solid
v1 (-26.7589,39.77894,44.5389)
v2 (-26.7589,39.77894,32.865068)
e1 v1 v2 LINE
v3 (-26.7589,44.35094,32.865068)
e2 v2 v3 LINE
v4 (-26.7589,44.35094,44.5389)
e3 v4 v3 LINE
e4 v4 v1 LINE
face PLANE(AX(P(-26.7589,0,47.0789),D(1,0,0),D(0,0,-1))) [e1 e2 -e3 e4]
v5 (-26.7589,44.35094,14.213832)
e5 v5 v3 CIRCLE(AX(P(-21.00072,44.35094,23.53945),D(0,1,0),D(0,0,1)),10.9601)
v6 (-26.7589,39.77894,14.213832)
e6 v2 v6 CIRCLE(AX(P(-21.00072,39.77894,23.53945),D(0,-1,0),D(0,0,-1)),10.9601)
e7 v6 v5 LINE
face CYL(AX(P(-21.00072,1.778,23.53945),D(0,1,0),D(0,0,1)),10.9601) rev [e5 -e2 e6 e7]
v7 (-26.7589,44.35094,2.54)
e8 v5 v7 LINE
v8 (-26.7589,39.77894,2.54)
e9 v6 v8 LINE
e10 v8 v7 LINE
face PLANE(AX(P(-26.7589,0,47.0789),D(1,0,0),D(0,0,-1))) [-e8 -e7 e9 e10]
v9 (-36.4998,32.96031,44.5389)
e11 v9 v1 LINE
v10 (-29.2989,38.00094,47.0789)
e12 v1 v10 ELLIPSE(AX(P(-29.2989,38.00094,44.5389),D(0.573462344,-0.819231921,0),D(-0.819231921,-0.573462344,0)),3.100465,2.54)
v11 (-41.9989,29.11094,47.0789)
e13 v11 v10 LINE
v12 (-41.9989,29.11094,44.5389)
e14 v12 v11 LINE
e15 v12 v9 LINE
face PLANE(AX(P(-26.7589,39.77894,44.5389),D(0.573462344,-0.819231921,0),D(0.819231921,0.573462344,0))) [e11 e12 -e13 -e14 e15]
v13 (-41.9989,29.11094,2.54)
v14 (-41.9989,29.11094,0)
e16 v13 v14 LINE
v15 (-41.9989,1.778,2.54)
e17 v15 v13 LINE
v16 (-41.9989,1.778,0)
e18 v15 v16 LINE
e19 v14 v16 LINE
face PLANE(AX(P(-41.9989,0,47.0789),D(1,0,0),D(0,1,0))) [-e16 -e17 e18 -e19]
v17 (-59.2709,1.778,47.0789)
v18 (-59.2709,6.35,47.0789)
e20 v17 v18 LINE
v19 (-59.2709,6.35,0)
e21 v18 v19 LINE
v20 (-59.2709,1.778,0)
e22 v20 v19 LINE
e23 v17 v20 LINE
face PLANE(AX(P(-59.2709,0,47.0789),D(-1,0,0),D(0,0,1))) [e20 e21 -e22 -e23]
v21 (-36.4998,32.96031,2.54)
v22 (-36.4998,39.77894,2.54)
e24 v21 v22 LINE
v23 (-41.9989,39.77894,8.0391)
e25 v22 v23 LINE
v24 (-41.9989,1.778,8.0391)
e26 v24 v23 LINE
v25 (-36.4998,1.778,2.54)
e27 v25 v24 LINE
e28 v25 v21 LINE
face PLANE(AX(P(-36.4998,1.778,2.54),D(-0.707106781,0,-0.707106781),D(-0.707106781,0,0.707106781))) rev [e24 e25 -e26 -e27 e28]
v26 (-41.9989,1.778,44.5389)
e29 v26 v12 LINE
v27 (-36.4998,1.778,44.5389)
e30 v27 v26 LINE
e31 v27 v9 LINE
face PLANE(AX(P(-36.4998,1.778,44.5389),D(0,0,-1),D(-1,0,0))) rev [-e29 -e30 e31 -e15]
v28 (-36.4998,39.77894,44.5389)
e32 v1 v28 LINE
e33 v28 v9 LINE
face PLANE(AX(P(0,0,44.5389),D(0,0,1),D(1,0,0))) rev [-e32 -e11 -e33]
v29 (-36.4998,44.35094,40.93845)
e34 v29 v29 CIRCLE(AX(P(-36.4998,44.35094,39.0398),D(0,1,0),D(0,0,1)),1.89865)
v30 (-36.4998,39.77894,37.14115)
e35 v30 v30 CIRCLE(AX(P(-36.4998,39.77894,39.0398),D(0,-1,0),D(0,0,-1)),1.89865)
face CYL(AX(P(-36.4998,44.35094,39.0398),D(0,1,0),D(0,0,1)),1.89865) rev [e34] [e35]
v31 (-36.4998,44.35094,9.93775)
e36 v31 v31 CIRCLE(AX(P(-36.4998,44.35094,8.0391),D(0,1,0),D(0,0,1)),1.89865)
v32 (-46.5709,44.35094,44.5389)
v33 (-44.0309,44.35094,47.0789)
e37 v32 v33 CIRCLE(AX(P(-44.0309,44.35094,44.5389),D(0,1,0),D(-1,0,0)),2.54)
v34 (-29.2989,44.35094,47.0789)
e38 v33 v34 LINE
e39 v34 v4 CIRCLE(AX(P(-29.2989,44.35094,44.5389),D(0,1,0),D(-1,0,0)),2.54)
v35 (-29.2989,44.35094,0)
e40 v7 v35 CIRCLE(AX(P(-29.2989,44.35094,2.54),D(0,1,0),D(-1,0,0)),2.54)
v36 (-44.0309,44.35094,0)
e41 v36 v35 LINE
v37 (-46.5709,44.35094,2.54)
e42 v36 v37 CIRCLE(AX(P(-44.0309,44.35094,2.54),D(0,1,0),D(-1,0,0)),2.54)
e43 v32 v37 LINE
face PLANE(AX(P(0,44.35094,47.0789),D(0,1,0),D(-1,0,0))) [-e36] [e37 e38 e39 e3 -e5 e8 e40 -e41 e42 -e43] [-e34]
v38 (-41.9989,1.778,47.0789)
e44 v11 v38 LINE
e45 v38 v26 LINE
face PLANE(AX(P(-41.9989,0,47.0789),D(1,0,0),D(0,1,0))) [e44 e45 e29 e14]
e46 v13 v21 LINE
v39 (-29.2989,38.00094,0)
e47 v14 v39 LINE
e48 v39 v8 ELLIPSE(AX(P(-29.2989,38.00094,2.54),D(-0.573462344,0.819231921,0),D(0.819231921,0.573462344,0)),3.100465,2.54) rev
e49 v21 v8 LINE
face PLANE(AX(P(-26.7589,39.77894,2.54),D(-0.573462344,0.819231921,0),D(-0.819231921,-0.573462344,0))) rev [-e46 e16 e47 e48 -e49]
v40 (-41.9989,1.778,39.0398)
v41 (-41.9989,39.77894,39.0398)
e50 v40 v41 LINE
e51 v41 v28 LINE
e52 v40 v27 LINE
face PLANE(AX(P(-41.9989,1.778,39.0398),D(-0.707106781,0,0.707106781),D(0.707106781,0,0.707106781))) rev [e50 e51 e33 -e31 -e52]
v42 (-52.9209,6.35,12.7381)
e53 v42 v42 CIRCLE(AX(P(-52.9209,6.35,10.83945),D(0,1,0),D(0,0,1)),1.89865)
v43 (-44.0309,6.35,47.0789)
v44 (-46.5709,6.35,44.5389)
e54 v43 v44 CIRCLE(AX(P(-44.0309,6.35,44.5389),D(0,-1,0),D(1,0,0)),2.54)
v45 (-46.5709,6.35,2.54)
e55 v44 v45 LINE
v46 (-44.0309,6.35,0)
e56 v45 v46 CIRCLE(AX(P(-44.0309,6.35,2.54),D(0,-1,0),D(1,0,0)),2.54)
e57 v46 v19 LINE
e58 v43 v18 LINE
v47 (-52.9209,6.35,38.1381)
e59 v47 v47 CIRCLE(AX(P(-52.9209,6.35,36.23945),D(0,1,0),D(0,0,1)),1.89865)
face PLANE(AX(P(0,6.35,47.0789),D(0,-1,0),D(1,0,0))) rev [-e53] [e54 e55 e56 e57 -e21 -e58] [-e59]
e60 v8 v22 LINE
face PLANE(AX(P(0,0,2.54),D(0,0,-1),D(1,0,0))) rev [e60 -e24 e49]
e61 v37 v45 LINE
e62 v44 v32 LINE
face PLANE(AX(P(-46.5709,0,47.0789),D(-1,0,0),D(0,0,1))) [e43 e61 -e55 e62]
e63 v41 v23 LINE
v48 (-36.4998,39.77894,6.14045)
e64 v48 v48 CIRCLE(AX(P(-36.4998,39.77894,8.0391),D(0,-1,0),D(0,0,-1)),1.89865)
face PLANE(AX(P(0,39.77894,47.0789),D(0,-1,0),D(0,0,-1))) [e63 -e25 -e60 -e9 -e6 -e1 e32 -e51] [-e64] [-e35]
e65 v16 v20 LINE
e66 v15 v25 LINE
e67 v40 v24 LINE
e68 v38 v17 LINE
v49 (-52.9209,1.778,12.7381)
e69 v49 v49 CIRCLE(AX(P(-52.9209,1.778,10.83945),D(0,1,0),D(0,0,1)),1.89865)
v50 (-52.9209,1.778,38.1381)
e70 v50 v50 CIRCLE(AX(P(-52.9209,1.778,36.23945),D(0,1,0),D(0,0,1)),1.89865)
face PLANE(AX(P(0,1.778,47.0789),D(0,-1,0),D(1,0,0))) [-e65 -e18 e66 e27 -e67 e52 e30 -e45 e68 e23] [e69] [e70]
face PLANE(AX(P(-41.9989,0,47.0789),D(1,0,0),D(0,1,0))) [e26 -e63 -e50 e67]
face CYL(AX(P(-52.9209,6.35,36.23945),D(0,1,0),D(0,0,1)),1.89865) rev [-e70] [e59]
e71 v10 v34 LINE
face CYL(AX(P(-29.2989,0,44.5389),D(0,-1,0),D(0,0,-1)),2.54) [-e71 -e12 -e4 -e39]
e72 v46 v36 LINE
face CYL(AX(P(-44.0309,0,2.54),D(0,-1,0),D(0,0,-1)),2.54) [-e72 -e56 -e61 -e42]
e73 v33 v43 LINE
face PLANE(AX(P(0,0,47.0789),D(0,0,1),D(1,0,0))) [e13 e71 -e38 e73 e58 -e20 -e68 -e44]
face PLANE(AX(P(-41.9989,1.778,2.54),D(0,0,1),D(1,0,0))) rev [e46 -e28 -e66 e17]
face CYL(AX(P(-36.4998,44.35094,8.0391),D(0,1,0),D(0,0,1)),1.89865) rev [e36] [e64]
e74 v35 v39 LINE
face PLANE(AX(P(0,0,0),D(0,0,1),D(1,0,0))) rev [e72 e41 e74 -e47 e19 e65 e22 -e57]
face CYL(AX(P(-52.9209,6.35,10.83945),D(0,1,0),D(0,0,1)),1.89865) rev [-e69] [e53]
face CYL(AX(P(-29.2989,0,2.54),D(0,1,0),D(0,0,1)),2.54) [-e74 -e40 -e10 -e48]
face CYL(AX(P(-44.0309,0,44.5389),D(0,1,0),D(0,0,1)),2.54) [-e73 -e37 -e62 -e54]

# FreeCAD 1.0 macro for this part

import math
import FreeCAD as App
import Part
import Sketcher
Q = App.Units.Quantity


def edges_at(feature, points):
    """Names of the edges that pass closest to the given points."""
    edges = feature.Shape.Edges
    near = lambda p: min(range(len(edges)), key=lambda i: edges[i].distToShape(Part.Vertex(*p))[0])
    return sorted({f"Edge{near(p) + 1}" for p in points})

doc = App.newDocument("Part")
body = doc.addObject("PartDesign::Body", "Body")

# Sketch on XY plane
sketch1 = body.newObject("Sketcher::SketchObject", "Sketch")
sketch1.AttachmentSupport = (doc.getObject("XY_Plane"), [""])
sketch1.MapMode = "FlatFace"
sketch1.addGeometry(Part.LineSegment(App.Vector(-59.3, 6.3, 0), App.Vector(-59.3, 1.8, 0)), False)
sketch1.addGeometry(Part.LineSegment(App.Vector(-59.3, 1.8, 0), App.Vector(-42, 1.8, 0)), False)
sketch1.addGeometry(Part.LineSegment(App.Vector(-42, 1.8, 0), App.Vector(-42, 39.8, 0)), False)
sketch1.addGeometry(Part.LineSegment(App.Vector(-42, 39.8, 0), App.Vector(-26.8, 39.8, 0)), False)
sketch1.addGeometry(Part.LineSegment(App.Vector(-26.8, 39.8, 0), App.Vector(-26.8, 44.4, 0)), False)
sketch1.addGeometry(Part.LineSegment(App.Vector(-26.8, 44.4, 0), App.Vector(-46.6, 44.4, 0)), False)
sketch1.addGeometry(Part.LineSegment(App.Vector(-46.6, 44.4, 0), App.Vector(-46.6, 6.3, 0)), False)
sketch1.addGeometry(Part.LineSegment(App.Vector(-46.6, 6.3, 0), App.Vector(-59.3, 6.3, 0)), False)
sketch1.addConstraint(Sketcher.Constraint("Coincident", 0, 2, 1, 1))
sketch1.addConstraint(Sketcher.Constraint("Coincident", 1, 2, 2, 1))
sketch1.addConstraint(Sketcher.Constraint("Coincident", 2, 2, 3, 1))
sketch1.addConstraint(Sketcher.Constraint("Coincident", 3, 2, 4, 1))
sketch1.addConstraint(Sketcher.Constraint("Coincident", 4, 2, 5, 1))
sketch1.addConstraint(Sketcher.Constraint("Coincident", 5, 2, 6, 1))
sketch1.addConstraint(Sketcher.Constraint("Coincident", 6, 2, 7, 1))
sketch1.addConstraint(Sketcher.Constraint("Coincident", 7, 2, 0, 1))
sketch1.addConstraint(Sketcher.Constraint("Vertical", 0))
sketch1.addConstraint(Sketcher.Constraint("Horizontal", 1))
sketch1.addConstraint(Sketcher.Constraint("Vertical", 2))
sketch1.addConstraint(Sketcher.Constraint("Horizontal", 3))
sketch1.addConstraint(Sketcher.Constraint("Vertical", 4))
sketch1.addConstraint(Sketcher.Constraint("Horizontal", 5))
sketch1.addConstraint(Sketcher.Constraint("Vertical", 6))
sketch1.addConstraint(Sketcher.Constraint("Horizontal", 7))
sketch1.addConstraint(Sketcher.Constraint("Equal", 0, 4))
sketch1.addConstraint(Sketcher.Constraint("DistanceX", 3, 1, 3, 2, Q("0.6 in")))
sketch1.addConstraint(Sketcher.Constraint("DistanceX", 7, 2, 7, 1, Q("0.5 in")))
sketch1.addConstraint(Sketcher.Constraint("DistanceX", 1, 1, 1, 2, Q("0.68 in")))
sketch1.addConstraint(Sketcher.Constraint("DistanceY", 0, 2, 0, 1, Q("0.18 in")))
sketch1.addConstraint(Sketcher.Constraint("DistanceY", -1, 1, 0, 2, Q("0.07 in")))
sketch1.addConstraint(Sketcher.Constraint("DistanceY", 2, 1, 2, 2, Q("1.4961 in")))
sketch1.addConstraint(Sketcher.Constraint("DistanceX", 0, 2, -1, 1, Q("2.3335 in")))
pad1 = body.newObject("PartDesign::Pad", "Pad")
pad1.Profile = sketch1
pad1.Length = Q("1.8535 in")

# Sketch on XY plane
sketch2 = body.newObject("Sketcher::SketchObject", "Sketch001")
sketch2.AttachmentSupport = (doc.getObject("XY_Plane"), [""])
sketch2.MapMode = "FlatFace"
sketch2.AttachmentOffset = App.Placement(App.Vector(0, 0, 1.8535 * 25.4), App.Rotation())
sketch2.addGeometry(Part.LineSegment(App.Vector(-42, 29, 0), App.Vector(-27, 40, 0)), False)
sketch2.addGeometry(Part.LineSegment(App.Vector(-27, 40, 0), App.Vector(-42, 40, 0)), False)
sketch2.addGeometry(Part.LineSegment(App.Vector(-42, 40, 0), App.Vector(-42, 29, 0)), False)
sketch2.addConstraint(Sketcher.Constraint("Coincident", 0, 2, 1, 1))
sketch2.addConstraint(Sketcher.Constraint("Coincident", 1, 2, 2, 1))
sketch2.addConstraint(Sketcher.Constraint("Coincident", 2, 2, 0, 1))
sketch2.addConstraint(Sketcher.Constraint("Horizontal", 1))
sketch2.addConstraint(Sketcher.Constraint("Vertical", 2))
sketch2.addConstraint(Sketcher.Constraint("DistanceX", 1, 2, 1, 1, Q("0.6 in")))
sketch2.addConstraint(Sketcher.Constraint("DistanceY", 2, 2, 2, 1, Q("0.42 in")))
sketch2.addConstraint(Sketcher.Constraint("DistanceX", 0, 2, -1, 1, Q("1.0535 in")))
sketch2.addConstraint(Sketcher.Constraint("DistanceY", -1, 1, 0, 2, Q("1.5661 in")))
pad2 = body.newObject("PartDesign::Pad", "Pad001")
pad2.Profile = sketch2
pad2.Length = Q("0.1 in")
pad2.Reversed = True
doc.recompute()

datumplane = body.newObject("PartDesign::Plane", "DatumPlane")
datumplane.AttachmentSupport = (doc.getObject("XY_Plane"), [""])
datumplane.MapMode = "FlatFace"
datumplane.AttachmentOffset = App.Placement(App.Vector(0, 0, 23.53945), App.Rotation())
mirrored = body.newObject("PartDesign::Mirrored", "Mirrored")
mirrored.Originals = [pad2]
mirrored.MirrorPlane = (datumplane, [""])
body.Tip = mirrored

# Sketch on XZ plane
sketch3 = body.newObject("Sketcher::SketchObject", "Sketch002")
sketch3.AttachmentSupport = (doc.getObject("XZ_Plane"), [""])
sketch3.MapMode = "FlatFace"
sketch3.AttachmentOffset = App.Placement(App.Vector(0, 0, -1.7461 * 25.4), App.Rotation())
sketch3.addGeometry(Part.Circle(App.Vector(-36.5, 8, 0), App.Vector(0, 0, 1), 1.9), False)
sketch3.addGeometry(Part.Circle(App.Vector(-36.5, 39, 0), App.Vector(0, 0, 1), 1.9), False)
sketch3.addConstraint(Sketcher.Constraint("Equal", 0, 1))
sketch3.addConstraint(Sketcher.Constraint("Vertical", 0, 3, 1, 3))
sketch3.addConstraint(Sketcher.Constraint("Diameter", 0, Q("0.1495 in")))
sketch3.addConstraint(Sketcher.Constraint("DistanceX", 0, 3, -1, 1, Q("1.437 in")))
sketch3.addConstraint(Sketcher.Constraint("DistanceY", -1, 1, 1, 3, Q("1.537 in")))
sketch3.addConstraint(Sketcher.Constraint("DistanceY", -1, 1, 0, 3, Q("0.3165 in")))
doc.recompute()
hole = body.newObject("PartDesign::Hole", "Hole")
hole.Profile = sketch3
hole.ThreadType = "None"
hole.Diameter = Q("0.1495 in")
hole.DepthType = "ThroughAll"
hole.Reversed = True

# Sketch on XZ plane
sketch4 = body.newObject("Sketcher::SketchObject", "Sketch003")
sketch4.AttachmentSupport = (doc.getObject("XZ_Plane"), [""])
sketch4.MapMode = "FlatFace"
sketch4.AttachmentOffset = App.Placement(App.Vector(0, 0, -1.7461 * 25.4), App.Rotation())
sketch4.addGeometry(Part.ArcOfCircle(Part.Circle(App.Vector(-21, 24, 0), App.Vector(0, 0, 1), 11), math.radians(122), math.radians(238)), False)
sketch4.addGeometry(Part.LineSegment(App.Vector(-27, 33, 0), App.Vector(-27, 14, 0)), False)
sketch4.addConstraint(Sketcher.Constraint("Coincident", 0, 1, 1, 1))
sketch4.addConstraint(Sketcher.Constraint("Coincident", 1, 2, 0, 2))
sketch4.addConstraint(Sketcher.Constraint("Vertical", 1))
sketch4.addConstraint(Sketcher.Constraint("Radius", 0, Q("0.4315 in")))
sketch4.addConstraint(Sketcher.Constraint("DistanceX", 0, 3, -1, 1, Q("0.8268 in")))
sketch4.addConstraint(Sketcher.Constraint("DistanceX", 0, 1, -1, 1, Q("1.0535 in")))
sketch4.addConstraint(Sketcher.Constraint("DistanceY", -1, 1, 0, 3, 23.53945))
pocket1 = body.newObject("PartDesign::Pocket", "Pocket")
pocket1.Profile = sketch4
pocket1.Type = "ThroughAll"
pocket1.Reversed = True
doc.recompute()

fillet = body.newObject("PartDesign::Fillet", "Fillet")
fillet.Base = (pocket1, edges_at(pocket1, [
    (-46.571, 25.35, 0),
    (-46.571, 25.35, 47.079),
    (-26.759, 42.065, 47.079),
    (-26.759, 42.065, 0),
]))
fillet.Radius = Q("0.1 in")

# Sketch on XZ plane
sketch5 = body.newObject("Sketcher::SketchObject", "Sketch004")
sketch5.AttachmentSupport = (doc.getObject("XZ_Plane"), [""])
sketch5.MapMode = "FlatFace"
sketch5.AttachmentOffset = App.Placement(App.Vector(0, 0, -0.25 * 25.4), App.Rotation())
sketch5.addGeometry(Part.Circle(App.Vector(-52.9, 10.8, 0), App.Vector(0, 0, 1), 1.9), False)
sketch5.addGeometry(Part.Circle(App.Vector(-52.9, 36.2, 0), App.Vector(0, 0, 1), 1.9), False)
sketch5.addConstraint(Sketcher.Constraint("Equal", 0, 1))
sketch5.addConstraint(Sketcher.Constraint("Vertical", 0, 3, 1, 3))
sketch5.addConstraint(Sketcher.Constraint("DistanceY", 0, 3, 1, 3, Q("1 in")))
sketch5.addConstraint(Sketcher.Constraint("Diameter", 0, Q("0.1495 in")))
sketch5.addConstraint(Sketcher.Constraint("DistanceX", 0, 3, -1, 1, Q("2.0835 in")))
sketch5.addConstraint(Sketcher.Constraint("DistanceY", -1, 1, 0, 3, 10.83945))
doc.recompute()
hole2 = body.newObject("PartDesign::Hole", "Hole001")
hole2.Profile = sketch5
hole2.ThreadType = "None"
hole2.Diameter = Q("0.1495 in")
hole2.DepthType = "ThroughAll"
hole2.Reversed = True

# Sketch on XZ plane
sketch6 = body.newObject("Sketcher::SketchObject", "Sketch005")
sketch6.AttachmentSupport = (doc.getObject("XZ_Plane"), [""])
sketch6.MapMode = "FlatFace"
sketch6.AttachmentOffset = App.Placement(App.Vector(0, 0, -1.5661 * 25.4), App.Rotation())
sketch6.addGeometry(Part.LineSegment(App.Vector(-42, 45, 0), App.Vector(-42, 39, 0)), False)
sketch6.addGeometry(Part.LineSegment(App.Vector(-42, 39, 0), App.Vector(-36, 45, 0)), False)
sketch6.addGeometry(Part.LineSegment(App.Vector(-36, 45, 0), App.Vector(-42, 45, 0)), False)
sketch6.addGeometry(Part.LineSegment(App.Vector(-42, 3, 0), App.Vector(-36, 3, 0)), False)
sketch6.addGeometry(Part.LineSegment(App.Vector(-36, 3, 0), App.Vector(-42, 8, 0)), False)
sketch6.addGeometry(Part.LineSegment(App.Vector(-42, 8, 0), App.Vector(-42, 3, 0)), False)
sketch6.addConstraint(Sketcher.Constraint("Coincident", 0, 2, 1, 1))
sketch6.addConstraint(Sketcher.Constraint("Coincident", 1, 2, 2, 1))
sketch6.addConstraint(Sketcher.Constraint("Coincident", 2, 2, 0, 1))
sketch6.addConstraint(Sketcher.Constraint("Coincident", 3, 2, 4, 1))
sketch6.addConstraint(Sketcher.Constraint("Coincident", 4, 2, 5, 1))
sketch6.addConstraint(Sketcher.Constraint("Coincident", 5, 2, 3, 1))
sketch6.addConstraint(Sketcher.Constraint("Vertical", 0))
sketch6.addConstraint(Sketcher.Constraint("Horizontal", 2))
sketch6.addConstraint(Sketcher.Constraint("Horizontal", 3))
sketch6.addConstraint(Sketcher.Constraint("Vertical", 5))
sketch6.addConstraint(Sketcher.Constraint("Perpendicular", 1, 4))
sketch6.addConstraint(Sketcher.Constraint("Vertical", 1, 2, 3, 2))
sketch6.addConstraint(Sketcher.Constraint("Vertical", 2, 2, 4, 2))
sketch6.addConstraint(Sketcher.Constraint("Equal", 3, 0))
sketch6.addConstraint(Sketcher.Constraint("DistanceY", -1, 1, 3, 2, Q("0.1 in")))
sketch6.addConstraint(Sketcher.Constraint("DistanceX", 2, 2, 2, 1, Q("0.2165 in")))
sketch6.addConstraint(Sketcher.Constraint("DistanceY", -1, 1, 0, 2, Q("1.537 in")))
sketch6.addConstraint(Sketcher.Constraint("DistanceX", 1, 2, -1, 1, Q("1.437 in")))
pad3 = body.newObject("PartDesign::Pad", "Pad002")
pad3.Profile = sketch6
pad3.Length = Q("1.4961 in")

doc.recompute()
